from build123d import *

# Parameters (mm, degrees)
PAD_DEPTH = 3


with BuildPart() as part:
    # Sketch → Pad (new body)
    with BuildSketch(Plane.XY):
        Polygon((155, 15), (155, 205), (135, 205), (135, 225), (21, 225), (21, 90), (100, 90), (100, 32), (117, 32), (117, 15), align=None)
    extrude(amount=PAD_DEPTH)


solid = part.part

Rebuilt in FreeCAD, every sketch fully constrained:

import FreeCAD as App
import Part
import Sketcher
from FreeCAD import Vector


def add_polygon(sketch, points):
    """Adds a closed chain of lines whose ends are joined by coincident constraints."""
    first, n = sketch.GeometryCount, len(points)
    for a, b in zip(points, points[1:] + points[:1]):
        sketch.addGeometry(Part.LineSegment(App.Vector(*a, 0), App.Vector(*b, 0)), False)
    for i in range(n):
        sketch.addConstraint(Sketcher.Constraint("Coincident", first + i, 2, first + (i + 1) % n, 1))

doc = App.newDocument("Part")
body = doc.addObject("PartDesign::Body", "Body")

# Sketch on XY plane
sketch1 = body.newObject("Sketcher::SketchObject", "Sketch")
sketch1.AttachmentSupport = (doc.getObject("XY_Plane"), [""])
sketch1.MapMode = "FlatFace"
add_polygon(sketch1, [(155, 15), (155, 205), (135, 205), (135, 225), (21, 225), (21, 90), (100, 90), (100, 32), (117, 32), (117, 15)])  # lines 0-9
sketch1.addConstraint([
    Sketcher.Constraint("Vertical", 0),
    Sketcher.Constraint("Horizontal", 1),
    Sketcher.Constraint("Vertical", 2),
    Sketcher.Constraint("Horizontal", 3),
    Sketcher.Constraint("Vertical", 4),
    Sketcher.Constraint("Horizontal", 5),
    Sketcher.Constraint("Vertical", 6),
    Sketcher.Constraint("Horizontal", 7),
    Sketcher.Constraint("Vertical", 8),
    Sketcher.Constraint("Horizontal", 9),
    Sketcher.Constraint("Equal", 1, 2),
    Sketcher.Constraint("Equal", 7, 8),
    Sketcher.Constraint("DistanceX", 1, 2, 1, 1, 20.0),
    Sketcher.Constraint("DistanceX", 3, 2, 3, 1, 114.0),
    Sketcher.Constraint("DistanceX", 5, 1, 5, 2, 79.0),
    Sketcher.Constraint("DistanceX", 7, 1, 7, 2, 17.0),
    Sketcher.Constraint("DistanceY", 0, 1, 0, 2, 190.0),
    Sketcher.Constraint("DistanceY", 4, 2, 4, 1, 135.0),
    Sketcher.Constraint("DistanceX", -1, 1, 0, 2, 155.0),
    Sketcher.Constraint("DistanceY", -1, 1, 0, 2, 205.0),
])
pad1 = body.newObject("PartDesign::Pad", "Pad")
pad1.Profile = sketch1
pad1.Length = 3

doc.recompute()
